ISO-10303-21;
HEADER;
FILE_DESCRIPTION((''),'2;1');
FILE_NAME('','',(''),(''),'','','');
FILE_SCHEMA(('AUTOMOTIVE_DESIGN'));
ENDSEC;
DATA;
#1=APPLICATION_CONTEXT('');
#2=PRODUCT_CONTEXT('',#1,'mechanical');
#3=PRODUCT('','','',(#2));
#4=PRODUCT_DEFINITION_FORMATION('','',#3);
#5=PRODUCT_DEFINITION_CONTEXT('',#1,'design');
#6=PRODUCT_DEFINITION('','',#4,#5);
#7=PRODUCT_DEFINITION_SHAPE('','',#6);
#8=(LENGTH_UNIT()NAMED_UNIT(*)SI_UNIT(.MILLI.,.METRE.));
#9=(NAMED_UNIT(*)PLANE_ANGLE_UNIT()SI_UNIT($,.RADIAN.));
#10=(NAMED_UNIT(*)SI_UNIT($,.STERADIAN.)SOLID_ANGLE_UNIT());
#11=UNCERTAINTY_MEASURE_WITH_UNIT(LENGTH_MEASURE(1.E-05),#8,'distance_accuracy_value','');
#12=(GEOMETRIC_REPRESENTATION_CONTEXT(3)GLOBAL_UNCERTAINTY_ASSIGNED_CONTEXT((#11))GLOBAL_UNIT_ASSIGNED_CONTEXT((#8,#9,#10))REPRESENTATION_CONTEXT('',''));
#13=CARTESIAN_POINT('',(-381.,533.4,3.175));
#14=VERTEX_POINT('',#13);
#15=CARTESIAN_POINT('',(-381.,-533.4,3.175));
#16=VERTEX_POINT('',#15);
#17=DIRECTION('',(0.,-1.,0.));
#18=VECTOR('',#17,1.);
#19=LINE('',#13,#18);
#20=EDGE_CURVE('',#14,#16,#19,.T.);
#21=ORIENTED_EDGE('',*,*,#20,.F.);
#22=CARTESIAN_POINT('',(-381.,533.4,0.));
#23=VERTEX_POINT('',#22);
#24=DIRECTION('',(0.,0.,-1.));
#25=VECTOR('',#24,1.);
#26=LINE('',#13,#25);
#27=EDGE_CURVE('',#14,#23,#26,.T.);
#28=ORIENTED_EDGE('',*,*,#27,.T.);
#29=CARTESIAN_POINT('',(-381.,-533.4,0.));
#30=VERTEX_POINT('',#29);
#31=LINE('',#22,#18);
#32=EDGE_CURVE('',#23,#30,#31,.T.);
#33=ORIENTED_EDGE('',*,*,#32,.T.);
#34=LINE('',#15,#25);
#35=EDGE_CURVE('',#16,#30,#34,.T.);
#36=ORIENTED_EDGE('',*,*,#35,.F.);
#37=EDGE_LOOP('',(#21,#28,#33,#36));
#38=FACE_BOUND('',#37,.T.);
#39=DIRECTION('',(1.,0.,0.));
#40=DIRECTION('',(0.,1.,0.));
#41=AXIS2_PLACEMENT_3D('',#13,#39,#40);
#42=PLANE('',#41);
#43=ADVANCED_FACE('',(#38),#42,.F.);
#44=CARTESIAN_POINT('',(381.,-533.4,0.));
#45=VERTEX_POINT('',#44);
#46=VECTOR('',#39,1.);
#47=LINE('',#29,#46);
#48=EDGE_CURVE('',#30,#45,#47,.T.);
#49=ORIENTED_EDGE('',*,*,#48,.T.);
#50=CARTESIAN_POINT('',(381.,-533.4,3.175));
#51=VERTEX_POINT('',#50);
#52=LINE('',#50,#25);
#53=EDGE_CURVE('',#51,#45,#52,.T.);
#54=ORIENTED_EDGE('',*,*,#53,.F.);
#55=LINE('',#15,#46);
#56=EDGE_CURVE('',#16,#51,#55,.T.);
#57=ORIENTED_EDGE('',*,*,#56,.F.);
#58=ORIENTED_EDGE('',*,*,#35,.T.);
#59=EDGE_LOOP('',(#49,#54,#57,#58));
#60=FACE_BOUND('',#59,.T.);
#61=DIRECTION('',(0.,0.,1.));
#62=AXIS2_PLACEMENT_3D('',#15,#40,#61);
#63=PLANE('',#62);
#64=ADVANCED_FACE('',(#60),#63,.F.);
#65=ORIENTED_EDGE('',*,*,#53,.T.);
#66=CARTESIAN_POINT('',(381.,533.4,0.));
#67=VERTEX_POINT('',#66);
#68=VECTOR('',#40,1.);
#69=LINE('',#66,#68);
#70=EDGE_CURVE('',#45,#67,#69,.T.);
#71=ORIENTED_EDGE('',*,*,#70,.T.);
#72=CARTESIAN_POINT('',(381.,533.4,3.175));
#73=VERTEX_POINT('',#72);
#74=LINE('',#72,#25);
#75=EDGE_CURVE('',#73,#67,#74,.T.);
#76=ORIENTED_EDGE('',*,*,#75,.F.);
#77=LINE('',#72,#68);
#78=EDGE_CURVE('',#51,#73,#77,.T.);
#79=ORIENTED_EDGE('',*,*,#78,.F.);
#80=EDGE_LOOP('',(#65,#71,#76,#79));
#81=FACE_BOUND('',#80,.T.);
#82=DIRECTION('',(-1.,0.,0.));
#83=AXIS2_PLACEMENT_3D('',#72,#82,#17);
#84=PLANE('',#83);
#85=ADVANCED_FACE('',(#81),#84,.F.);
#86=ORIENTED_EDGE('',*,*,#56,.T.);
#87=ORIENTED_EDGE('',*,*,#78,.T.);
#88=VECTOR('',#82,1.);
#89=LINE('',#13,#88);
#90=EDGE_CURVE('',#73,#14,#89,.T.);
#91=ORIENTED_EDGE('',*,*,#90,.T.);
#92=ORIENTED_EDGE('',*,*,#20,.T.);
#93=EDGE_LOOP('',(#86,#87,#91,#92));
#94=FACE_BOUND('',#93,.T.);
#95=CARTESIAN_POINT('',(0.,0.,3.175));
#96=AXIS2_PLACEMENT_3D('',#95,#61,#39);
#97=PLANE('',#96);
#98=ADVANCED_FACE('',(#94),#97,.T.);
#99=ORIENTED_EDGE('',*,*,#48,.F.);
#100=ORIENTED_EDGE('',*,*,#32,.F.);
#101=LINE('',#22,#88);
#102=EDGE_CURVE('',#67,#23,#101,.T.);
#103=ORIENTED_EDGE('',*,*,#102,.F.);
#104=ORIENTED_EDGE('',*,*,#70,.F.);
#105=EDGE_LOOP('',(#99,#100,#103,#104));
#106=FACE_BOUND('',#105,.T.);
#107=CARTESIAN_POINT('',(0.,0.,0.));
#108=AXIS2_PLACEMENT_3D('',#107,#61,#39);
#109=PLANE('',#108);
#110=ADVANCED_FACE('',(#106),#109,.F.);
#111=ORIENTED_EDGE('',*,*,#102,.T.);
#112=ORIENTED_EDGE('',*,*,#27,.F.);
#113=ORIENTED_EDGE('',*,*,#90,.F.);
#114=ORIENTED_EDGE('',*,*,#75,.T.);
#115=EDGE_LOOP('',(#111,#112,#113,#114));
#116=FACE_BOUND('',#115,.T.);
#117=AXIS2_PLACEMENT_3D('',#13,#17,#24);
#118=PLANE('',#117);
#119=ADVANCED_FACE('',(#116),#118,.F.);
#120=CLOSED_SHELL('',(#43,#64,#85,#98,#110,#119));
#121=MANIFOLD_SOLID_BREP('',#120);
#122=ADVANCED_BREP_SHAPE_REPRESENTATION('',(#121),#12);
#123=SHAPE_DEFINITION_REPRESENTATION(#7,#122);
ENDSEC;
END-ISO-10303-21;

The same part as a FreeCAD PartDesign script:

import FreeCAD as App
import Part
import Sketcher
Q = App.Units.Quantity

doc = App.newDocument("Part")
params = doc.addObject("Spreadsheet::Sheet", "Params")
for row, (alias, value) in enumerate([
    ("sketch1_width", "30 in"),
    ("sketch1_height", "42 in"),
    ("pad1_length", "0.125 in"),
], start=1):
    params.set(f"A{row}", alias)
    params.set(f"B{row}", "=" + value)
    params.setAlias(f"B{row}", alias)

body = doc.addObject("PartDesign::Body", "Body")

sketch1 = body.newObject("Sketcher::SketchObject", "Sketch")
sketch1.AttachmentSupport = (doc.getObject("XY_Plane"), [""])
sketch1.MapMode = "FlatFace"
sketch1.addGeometry(Part.LineSegment(App.Vector(-381, 533, 0), App.Vector(-381, -533, 0)), False)
sketch1.addGeometry(Part.LineSegment(App.Vector(-381, -533, 0), App.Vector(381, -533, 0)), False)
sketch1.addGeometry(Part.LineSegment(App.Vector(381, -533, 0), App.Vector(381, 533, 0)), False)
sketch1.addGeometry(Part.LineSegment(App.Vector(381, 533, 0), App.Vector(-381, 533, 0)), False)
sketch1.addConstraint(Sketcher.Constraint("Coincident", 0, 2, 1, 1))
sketch1.addConstraint(Sketcher.Constraint("Coincident", 1, 2, 2, 1))
sketch1.addConstraint(Sketcher.Constraint("Coincident", 2, 2, 3, 1))
sketch1.addConstraint(Sketcher.Constraint("Coincident", 3, 2, 0, 1))
sketch1.addConstraint(Sketcher.Constraint("Vertical", 0))
sketch1.addConstraint(Sketcher.Constraint("Horizontal", 1))
sketch1.addConstraint(Sketcher.Constraint("Vertical", 2))
sketch1.addConstraint(Sketcher.Constraint("Horizontal", 3))
sketch1.addConstraint(Sketcher.Constraint("Symmetric", 0, 2, 2, 2, -1, 1))
sketch1.addConstraint(Sketcher.Constraint("DistanceX", 1, 1, 1, 2, Q("30 in")))
sketch1.addConstraint(Sketcher.Constraint("DistanceY", 0, 2, 0, 1, Q("42 in")))
sketch1.setExpression("Constraints[9]", "Params.sketch1_width")
sketch1.setExpression("Constraints[10]", "Params.sketch1_height")
pad1 = body.newObject("PartDesign::Pad", "Pad")
pad1.Profile = sketch1
pad1.setExpression("Length", "Params.pad1_length")

doc.recompute()
